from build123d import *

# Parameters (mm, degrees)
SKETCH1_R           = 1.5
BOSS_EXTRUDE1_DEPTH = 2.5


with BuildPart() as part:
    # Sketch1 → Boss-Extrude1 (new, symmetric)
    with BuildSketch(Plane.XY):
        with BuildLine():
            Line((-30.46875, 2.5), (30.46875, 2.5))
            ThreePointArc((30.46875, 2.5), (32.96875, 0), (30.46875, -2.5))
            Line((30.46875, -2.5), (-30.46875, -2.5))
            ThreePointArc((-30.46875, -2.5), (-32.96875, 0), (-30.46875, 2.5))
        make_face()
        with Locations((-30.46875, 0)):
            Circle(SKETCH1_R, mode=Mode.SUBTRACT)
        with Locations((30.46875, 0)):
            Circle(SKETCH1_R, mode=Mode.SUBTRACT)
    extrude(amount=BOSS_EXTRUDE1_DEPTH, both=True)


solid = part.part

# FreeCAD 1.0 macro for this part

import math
import FreeCAD as App
import Part
import Sketcher

V = App.Vector

doc = App.newDocument("Part")
body = doc.addObject("PartDesign::Body", "Body")

sketch1 = body.newObject("Sketcher::SketchObject", "Sketch")
sketch1.AttachmentSupport = (doc.getObject("XY_Plane"), [""])
sketch1.MapMode = "FlatFace"
sketch1.addGeometry([
    Part.LineSegment(V(30.5, 2.5, 0), V(-30.5, 2.5, 0)),
    Part.ArcOfCircle(Part.Circle(V(-30.5, 0, 0), V(0, 0, 1), 2.5), math.radians(90), math.radians(270)),
    Part.LineSegment(V(-30.5, -2.5, 0), V(30.5, -2.5, 0)),
    Part.ArcOfCircle(Part.Circle(V(30.5, 0, 0), V(0, 0, 1), 2.5), math.radians(-90), math.radians(90)),
    Part.Circle(V(30.5, 0, 0), V(0, 0, 1), 1.5),
    Part.Circle(V(-30.5, 0, 0), V(0, 0, 1), 1.5),
], False)
sketch1.addConstraint([
    Sketcher.Constraint("Tangent", 0, 2, 1, 1),
    Sketcher.Constraint("Tangent", 1, 2, 2, 1),
    Sketcher.Constraint("Tangent", 2, 2, 3, 1),
    Sketcher.Constraint("Tangent", 3, 2, 0, 1),
    Sketcher.Constraint("Horizontal", 0),
    Sketcher.Constraint("Horizontal", 2),
    Sketcher.Constraint("Coincident", 4, 3, 3, 3),
    Sketcher.Constraint("Coincident", 5, 3, 1, 3),
    Sketcher.Constraint("Equal", 4, 5),
    Sketcher.Constraint("Symmetric", 1, 3, 3, 3, -1, 1),
    Sketcher.Constraint("Diameter", 4, 3.0),
    Sketcher.Constraint("Radius", 1, 2.5),
    Sketcher.Constraint("DistanceX", 0, 2, 0, 1, 60.9375),
])
pad1 = body.newObject("PartDesign::Pad", "Pad")
pad1.Profile = sketch1
pad1.Length = 5
pad1.Midplane = True

doc.recompute()
